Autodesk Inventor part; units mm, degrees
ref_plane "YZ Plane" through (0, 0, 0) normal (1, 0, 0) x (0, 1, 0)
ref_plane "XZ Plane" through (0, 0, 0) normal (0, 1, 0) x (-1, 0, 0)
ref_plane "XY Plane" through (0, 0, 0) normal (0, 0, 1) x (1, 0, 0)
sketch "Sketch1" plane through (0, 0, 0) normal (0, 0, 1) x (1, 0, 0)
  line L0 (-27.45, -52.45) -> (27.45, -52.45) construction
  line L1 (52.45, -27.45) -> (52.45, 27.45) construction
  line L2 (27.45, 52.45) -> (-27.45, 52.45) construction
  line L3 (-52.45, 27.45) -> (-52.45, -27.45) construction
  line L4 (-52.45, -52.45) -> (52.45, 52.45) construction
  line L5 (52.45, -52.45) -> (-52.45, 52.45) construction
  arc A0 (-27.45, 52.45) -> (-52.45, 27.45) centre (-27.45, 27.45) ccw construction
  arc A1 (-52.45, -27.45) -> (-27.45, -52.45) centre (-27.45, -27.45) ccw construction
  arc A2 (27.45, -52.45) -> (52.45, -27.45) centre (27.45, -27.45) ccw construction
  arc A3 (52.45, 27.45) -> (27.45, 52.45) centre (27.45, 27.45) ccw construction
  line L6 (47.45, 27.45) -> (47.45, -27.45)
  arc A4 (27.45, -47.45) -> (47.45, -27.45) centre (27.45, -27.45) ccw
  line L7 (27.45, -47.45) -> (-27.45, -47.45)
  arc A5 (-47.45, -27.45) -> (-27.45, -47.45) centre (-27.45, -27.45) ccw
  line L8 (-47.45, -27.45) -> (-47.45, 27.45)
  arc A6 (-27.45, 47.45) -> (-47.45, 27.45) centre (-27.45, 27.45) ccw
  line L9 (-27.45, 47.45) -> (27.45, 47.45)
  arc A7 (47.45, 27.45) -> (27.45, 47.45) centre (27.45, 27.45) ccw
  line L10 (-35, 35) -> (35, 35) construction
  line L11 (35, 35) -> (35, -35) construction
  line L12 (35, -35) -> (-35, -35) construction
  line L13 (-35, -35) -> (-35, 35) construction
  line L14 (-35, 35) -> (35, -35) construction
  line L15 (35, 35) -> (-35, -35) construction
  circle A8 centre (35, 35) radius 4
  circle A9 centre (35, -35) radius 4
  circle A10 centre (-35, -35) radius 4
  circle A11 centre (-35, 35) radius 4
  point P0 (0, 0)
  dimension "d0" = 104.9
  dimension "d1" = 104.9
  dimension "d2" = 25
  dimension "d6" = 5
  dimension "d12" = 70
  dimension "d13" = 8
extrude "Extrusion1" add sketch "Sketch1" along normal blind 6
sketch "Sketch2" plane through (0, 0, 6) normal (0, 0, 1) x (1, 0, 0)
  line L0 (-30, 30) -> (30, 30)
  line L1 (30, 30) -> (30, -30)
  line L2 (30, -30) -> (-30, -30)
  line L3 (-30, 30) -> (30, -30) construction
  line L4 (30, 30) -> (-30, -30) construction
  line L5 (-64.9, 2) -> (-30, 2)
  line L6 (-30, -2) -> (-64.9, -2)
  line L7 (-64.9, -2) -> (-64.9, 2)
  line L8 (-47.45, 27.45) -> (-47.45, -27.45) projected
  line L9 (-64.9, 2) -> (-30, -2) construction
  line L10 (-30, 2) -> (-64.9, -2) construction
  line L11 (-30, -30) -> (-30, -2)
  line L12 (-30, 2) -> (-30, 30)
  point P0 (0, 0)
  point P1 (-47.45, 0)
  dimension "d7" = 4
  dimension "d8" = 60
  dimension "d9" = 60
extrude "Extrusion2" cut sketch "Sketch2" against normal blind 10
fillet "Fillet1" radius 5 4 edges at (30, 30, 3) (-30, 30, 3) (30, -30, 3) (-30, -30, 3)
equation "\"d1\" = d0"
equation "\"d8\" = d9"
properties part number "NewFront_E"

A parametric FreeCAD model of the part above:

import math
import FreeCAD as App
import Part
import Sketcher


def edges_at(feature, points):
    """Names of the edges that pass closest to the given points."""
    edges = feature.Shape.Edges
    near = lambda p: min(range(len(edges)), key=lambda i: edges[i].distToShape(Part.Vertex(*p))[0])
    return sorted({f"Edge{near(p) + 1}" for p in points})

doc = App.newDocument("Part")
body = doc.addObject("PartDesign::Body", "Body")

# Sketch on XY plane
sketch1 = doc.addObject("Sketcher::SketchObject", "Sketch")
body.addObject(sketch1)
sketch1.AttachmentSupport = (doc.XY_Plane, [""])
sketch1.MapMode = "FlatFace"
sketch1.addGeometry(Part.LineSegment(App.Vector(47.5, -27.4, 0), App.Vector(47.5, 27.4, 0)), False)
sketch1.addGeometry(Part.ArcOfCircle(Part.Circle(App.Vector(27.4, 27.4, 0), App.Vector(0, 0, 1), 20), math.radians(0), math.radians(90)), False)
sketch1.addGeometry(Part.LineSegment(App.Vector(27.4, 47.5, 0), App.Vector(-27.4, 47.5, 0)), False)
sketch1.addGeometry(Part.ArcOfCircle(Part.Circle(App.Vector(-27.4, 27.4, 0), App.Vector(0, 0, 1), 20), math.radians(90), math.radians(180)), False)
sketch1.addGeometry(Part.LineSegment(App.Vector(-47.5, 27.4, 0), App.Vector(-47.5, -27.4, 0)), False)
sketch1.addGeometry(Part.ArcOfCircle(Part.Circle(App.Vector(-27.4, -27.4, 0), App.Vector(0, 0, 1), 20), math.radians(180), math.radians(270)), False)
sketch1.addGeometry(Part.LineSegment(App.Vector(-27.4, -47.5, 0), App.Vector(27.4, -47.5, 0)), False)
sketch1.addGeometry(Part.ArcOfCircle(Part.Circle(App.Vector(27.4, -27.4, 0), App.Vector(0, 0, 1), 20), math.radians(-90), math.radians(0)), False)
sketch1.addGeometry(Part.Circle(App.Vector(-35, -35, 0), App.Vector(0, 0, 1), 4), False)
sketch1.addGeometry(Part.Circle(App.Vector(35, -35, 0), App.Vector(0, 0, 1), 4), False)
sketch1.addGeometry(Part.Circle(App.Vector(-35, 35, 0), App.Vector(0, 0, 1), 4), False)
sketch1.addGeometry(Part.Circle(App.Vector(35, 35, 0), App.Vector(0, 0, 1), 4), False)
sketch1.addConstraint(Sketcher.Constraint("Tangent", 0, 2, 1, 1))
sketch1.addConstraint(Sketcher.Constraint("Tangent", 1, 2, 2, 1))
sketch1.addConstraint(Sketcher.Constraint("Tangent", 2, 2, 3, 1))
sketch1.addConstraint(Sketcher.Constraint("Tangent", 3, 2, 4, 1))
sketch1.addConstraint(Sketcher.Constraint("Tangent", 4, 2, 5, 1))
sketch1.addConstraint(Sketcher.Constraint("Tangent", 5, 2, 6, 1))
sketch1.addConstraint(Sketcher.Constraint("Tangent", 6, 2, 7, 1))
sketch1.addConstraint(Sketcher.Constraint("Tangent", 7, 2, 0, 1))
sketch1.addConstraint(Sketcher.Constraint("Vertical", 0))
sketch1.addConstraint(Sketcher.Constraint("Horizontal", 2))
sketch1.addConstraint(Sketcher.Constraint("Vertical", 4))
sketch1.addConstraint(Sketcher.Constraint("Horizontal", 6))
sketch1.addConstraint(Sketcher.Constraint("Equal", 1, 3))
sketch1.addConstraint(Sketcher.Constraint("Equal", 3, 5))
sketch1.addConstraint(Sketcher.Constraint("Equal", 5, 7))
sketch1.addConstraint(Sketcher.Constraint("Equal", 8, 9))
sketch1.addConstraint(Sketcher.Constraint("Equal", 9, 10))
sketch1.addConstraint(Sketcher.Constraint("Equal", 10, 11))
sketch1.addConstraint(Sketcher.Constraint("Symmetric", 1, 3, 5, 3, -1, 1))
sketch1.addConstraint(Sketcher.Constraint("Symmetric", 9, 3, 10, 3, -1, 1))
sketch1.addConstraint(Sketcher.Constraint("Symmetric", 8, 3, 11, 3, -1, 1))
sketch1.addConstraint(Sketcher.Constraint("Symmetric", 8, 3, 9, 3, -2))
sketch1.addConstraint(Sketcher.Constraint("Equal", 6, 0))
sketch1.addConstraint(Sketcher.Constraint("Diameter", 8, 8.0))
sketch1.addConstraint(Sketcher.Constraint("Radius", 1, 20.0))
sketch1.addConstraint(Sketcher.Constraint("DistanceX", 8, 3, 9, 3, 70.0))
sketch1.addConstraint(Sketcher.Constraint("DistanceY", 8, 3, 10, 3, 70.0))
sketch1.addConstraint(Sketcher.Constraint("DistanceX", 2, 2, 2, 1, 54.9))
pad1 = doc.addObject("PartDesign::Pad", "Pad")
body.addObject(pad1)
pad1.Profile = sketch1
pad1.Length = 6

# Sketch on XY plane
sketch2 = doc.addObject("Sketcher::SketchObject", "Sketch001")
body.addObject(sketch2)
sketch2.AttachmentSupport = (doc.XY_Plane, [""])
sketch2.MapMode = "FlatFace"
sketch2.AttachmentOffset = App.Placement(App.Vector(0, 0, 6), App.Rotation())
sketch2.addGeometry(Part.LineSegment(App.Vector(30, 30, 0), App.Vector(-30, 30, 0)), False)
sketch2.addGeometry(Part.LineSegment(App.Vector(-30, 30, 0), App.Vector(-30, 2, 0)), False)
sketch2.addGeometry(Part.LineSegment(App.Vector(-30, 2, 0), App.Vector(-64.9, 2, 0)), False)
sketch2.addGeometry(Part.LineSegment(App.Vector(-64.9, 2, 0), App.Vector(-64.9, -2, 0)), False)
sketch2.addGeometry(Part.LineSegment(App.Vector(-64.9, -2, 0), App.Vector(-30, -2, 0)), False)
sketch2.addGeometry(Part.LineSegment(App.Vector(-30, -2, 0), App.Vector(-30, -30, 0)), False)
sketch2.addGeometry(Part.LineSegment(App.Vector(-30, -30, 0), App.Vector(30, -30, 0)), False)
sketch2.addGeometry(Part.LineSegment(App.Vector(30, -30, 0), App.Vector(30, 30, 0)), False)
sketch2.addConstraint(Sketcher.Constraint("Coincident", 0, 2, 1, 1))
sketch2.addConstraint(Sketcher.Constraint("Coincident", 1, 2, 2, 1))
sketch2.addConstraint(Sketcher.Constraint("Coincident", 2, 2, 3, 1))
sketch2.addConstraint(Sketcher.Constraint("Coincident", 3, 2, 4, 1))
sketch2.addConstraint(Sketcher.Constraint("Coincident", 4, 2, 5, 1))
sketch2.addConstraint(Sketcher.Constraint("Coincident", 5, 2, 6, 1))
sketch2.addConstraint(Sketcher.Constraint("Coincident", 6, 2, 7, 1))
sketch2.addConstraint(Sketcher.Constraint("Coincident", 7, 2, 0, 1))
sketch2.addConstraint(Sketcher.Constraint("Horizontal", 0))
sketch2.addConstraint(Sketcher.Constraint("Vertical", 1))
sketch2.addConstraint(Sketcher.Constraint("Horizontal", 2))
sketch2.addConstraint(Sketcher.Constraint("Vertical", 3))
sketch2.addConstraint(Sketcher.Constraint("Horizontal", 4))
sketch2.addConstraint(Sketcher.Constraint("Vertical", 5))
sketch2.addConstraint(Sketcher.Constraint("Horizontal", 6))
sketch2.addConstraint(Sketcher.Constraint("Vertical", 7))
sketch2.addConstraint(Sketcher.Constraint("Symmetric", 0, 2, 6, 2, -1, 1))
sketch2.addConstraint(Sketcher.Constraint("Symmetric", 1, 2, 4, 2, -1))
sketch2.addConstraint(Sketcher.Constraint("Equal", 6, 7))
sketch2.addConstraint(Sketcher.Constraint("DistanceX", 0, 2, 0, 1, 60.0))
sketch2.addConstraint(Sketcher.Constraint("DistanceY", 3, 2, 3, 1, 4.0))
sketch2.addConstraint(Sketcher.Constraint("DistanceX", 2, 2, 2, 1, 34.9))
pocket1 = doc.addObject("PartDesign::Pocket", "Pocket")
body.addObject(pocket1)
pocket1.Profile = sketch2
pocket1.Length = 10
doc.recompute()

fillet = doc.addObject("PartDesign::Fillet", "Fillet")
body.addObject(fillet)
fillet.Base = (pocket1, edges_at(pocket1, [
    (30, 30, 3),
    (-30, 30, 3),
    (30, -30, 3),
    (-30, -30, 3),
]))
fillet.Radius = 5

doc.recompute()
